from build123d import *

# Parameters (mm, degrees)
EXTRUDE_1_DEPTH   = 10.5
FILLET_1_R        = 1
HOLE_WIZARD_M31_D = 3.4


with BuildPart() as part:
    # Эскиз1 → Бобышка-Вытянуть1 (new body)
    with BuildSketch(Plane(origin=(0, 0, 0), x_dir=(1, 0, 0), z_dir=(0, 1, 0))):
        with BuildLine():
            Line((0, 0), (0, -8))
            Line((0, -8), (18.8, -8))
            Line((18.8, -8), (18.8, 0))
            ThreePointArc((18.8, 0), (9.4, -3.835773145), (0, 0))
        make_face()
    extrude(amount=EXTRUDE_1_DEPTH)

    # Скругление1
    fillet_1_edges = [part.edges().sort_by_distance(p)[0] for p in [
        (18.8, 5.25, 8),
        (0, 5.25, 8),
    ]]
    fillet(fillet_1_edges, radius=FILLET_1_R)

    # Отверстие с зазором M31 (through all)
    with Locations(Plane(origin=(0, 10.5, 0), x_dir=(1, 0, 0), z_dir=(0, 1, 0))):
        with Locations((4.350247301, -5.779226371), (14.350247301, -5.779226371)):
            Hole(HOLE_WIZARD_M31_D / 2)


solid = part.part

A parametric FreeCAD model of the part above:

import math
import FreeCAD as App
import Part
import Sketcher
Q = App.Units.Quantity


def edges_at(feature, points):
    """Names of the edges that pass closest to the given points."""
    edges = feature.Shape.Edges
    near = lambda p: min(range(len(edges)), key=lambda i: edges[i].distToShape(Part.Vertex(*p))[0])
    return sorted({f"Edge{near(p) + 1}" for p in points})

doc = App.newDocument("Part")
params = doc.addObject("Spreadsheet::Sheet", "Params")
for row, (alias, value) in enumerate([
    ("sketch1_height", "8 mm"),
    ("sketch1_width", "18.8 mm"),
    ("pad1_length", "10.5 mm"),
    ("fillet_radius", "1 mm"),
    ("sketch2_diameter", "3.4 mm"),
    ("hole_diameter", "3.4 mm"),
], start=1):
    params.set(f"A{row}", alias)
    params.set(f"B{row}", "=" + value)
    params.setAlias(f"B{row}", alias)

body = doc.addObject("PartDesign::Body", "Body")

# Sketch on XZ plane
sketch1 = body.newObject("Sketcher::SketchObject", "Sketch")
sketch1.AttachmentSupport = (doc.getObject("XZ_Plane"), [""])
sketch1.MapMode = "FlatFace"
sketch1.addGeometry([
    Part.LineSegment(App.Vector(0, 0, 0), App.Vector(0, 8, 0)),
    Part.LineSegment(App.Vector(0, 8, 0), App.Vector(19, 8, 0)),
    Part.LineSegment(App.Vector(19, 8, 0), App.Vector(19, 0, 0)),
    Part.ArcOfCircle(Part.Circle(App.Vector(9, -10, 0), App.Vector(0, 0, 1), 13), math.radians(46), math.radians(134)),
], False)
sketch1.addConstraint([
    Sketcher.Constraint("Coincident", 0, 2, 1, 1),
    Sketcher.Constraint("Coincident", 1, 2, 2, 1),
    Sketcher.Constraint("Coincident", 2, 2, 3, 1),
    Sketcher.Constraint("Coincident", 3, 2, 0, 1),
    Sketcher.Constraint("Vertical", 0),
    Sketcher.Constraint("Horizontal", 1),
    Sketcher.Constraint("Vertical", 2),
    Sketcher.Constraint("Coincident", 3, 2, -1, 1),
    Sketcher.Constraint("PointOnObject", 2, 2, -1),
    Sketcher.Constraint("DistanceY", 0, 1, 0, 2, Q("8 mm")),
    Sketcher.Constraint("DistanceX", 1, 1, 1, 2, Q("18.8 mm")),
    Sketcher.Constraint("DistanceY", 3, 3, -1, 1, Q("9.6 mm")),
])
sketch1.setExpression("Constraints[9]", "Params.sketch1_height")
sketch1.setExpression("Constraints[10]", "Params.sketch1_width")
pad1 = body.newObject("PartDesign::Pad", "Pad")
pad1.Profile = sketch1
pad1.setExpression("Length", "Params.pad1_length")
pad1.Reversed = True
doc.recompute()

fillet = body.newObject("PartDesign::Fillet", "Fillet")
fillet.Base = (pad1, edges_at(pad1, [(18.8, 5.25, 8), (0, 5.25, 8)]))
fillet.setExpression("Radius", "Params.fillet_radius")

# Sketch on XZ plane
sketch2 = body.newObject("Sketcher::SketchObject", "Sketch001")
sketch2.AttachmentSupport = (doc.getObject("XZ_Plane"), [""])
sketch2.MapMode = "FlatFace"
sketch2.AttachmentOffset = App.Placement(App.Vector(0, 0, -10.5), App.Rotation())
sketch2.addGeometry([
    Part.Circle(App.Vector(4.4, 5.8, 0), App.Vector(0, 0, 1), 1.7),
    Part.Circle(App.Vector(14.4, 5.8, 0), App.Vector(0, 0, 1), 1.7),
], False)
sketch2.addConstraint([
    Sketcher.Constraint("Equal", 0, 1),
    Sketcher.Constraint("Horizontal", 0, 3, 1, 3),
    Sketcher.Constraint("Diameter", 0, Q("3.4 mm")),
    Sketcher.Constraint("DistanceX", 0, 3, 1, 3, Q("10 mm")),
    Sketcher.Constraint("DistanceX", -1, 1, 0, 3, Q("4.350247 mm")),
    Sketcher.Constraint("DistanceY", -1, 1, 0, 3, Q("5.779226 mm")),
])
sketch2.setExpression("Constraints[2]", "Params.sketch2_diameter")
doc.recompute()
hole = body.newObject("PartDesign::Hole", "Hole")
hole.Profile = sketch2
hole.ThreadType = "None"
hole.setExpression("Diameter", "Params.hole_diameter")
hole.DepthType = "ThroughAll"
hole.Reversed = True

doc.recompute()
